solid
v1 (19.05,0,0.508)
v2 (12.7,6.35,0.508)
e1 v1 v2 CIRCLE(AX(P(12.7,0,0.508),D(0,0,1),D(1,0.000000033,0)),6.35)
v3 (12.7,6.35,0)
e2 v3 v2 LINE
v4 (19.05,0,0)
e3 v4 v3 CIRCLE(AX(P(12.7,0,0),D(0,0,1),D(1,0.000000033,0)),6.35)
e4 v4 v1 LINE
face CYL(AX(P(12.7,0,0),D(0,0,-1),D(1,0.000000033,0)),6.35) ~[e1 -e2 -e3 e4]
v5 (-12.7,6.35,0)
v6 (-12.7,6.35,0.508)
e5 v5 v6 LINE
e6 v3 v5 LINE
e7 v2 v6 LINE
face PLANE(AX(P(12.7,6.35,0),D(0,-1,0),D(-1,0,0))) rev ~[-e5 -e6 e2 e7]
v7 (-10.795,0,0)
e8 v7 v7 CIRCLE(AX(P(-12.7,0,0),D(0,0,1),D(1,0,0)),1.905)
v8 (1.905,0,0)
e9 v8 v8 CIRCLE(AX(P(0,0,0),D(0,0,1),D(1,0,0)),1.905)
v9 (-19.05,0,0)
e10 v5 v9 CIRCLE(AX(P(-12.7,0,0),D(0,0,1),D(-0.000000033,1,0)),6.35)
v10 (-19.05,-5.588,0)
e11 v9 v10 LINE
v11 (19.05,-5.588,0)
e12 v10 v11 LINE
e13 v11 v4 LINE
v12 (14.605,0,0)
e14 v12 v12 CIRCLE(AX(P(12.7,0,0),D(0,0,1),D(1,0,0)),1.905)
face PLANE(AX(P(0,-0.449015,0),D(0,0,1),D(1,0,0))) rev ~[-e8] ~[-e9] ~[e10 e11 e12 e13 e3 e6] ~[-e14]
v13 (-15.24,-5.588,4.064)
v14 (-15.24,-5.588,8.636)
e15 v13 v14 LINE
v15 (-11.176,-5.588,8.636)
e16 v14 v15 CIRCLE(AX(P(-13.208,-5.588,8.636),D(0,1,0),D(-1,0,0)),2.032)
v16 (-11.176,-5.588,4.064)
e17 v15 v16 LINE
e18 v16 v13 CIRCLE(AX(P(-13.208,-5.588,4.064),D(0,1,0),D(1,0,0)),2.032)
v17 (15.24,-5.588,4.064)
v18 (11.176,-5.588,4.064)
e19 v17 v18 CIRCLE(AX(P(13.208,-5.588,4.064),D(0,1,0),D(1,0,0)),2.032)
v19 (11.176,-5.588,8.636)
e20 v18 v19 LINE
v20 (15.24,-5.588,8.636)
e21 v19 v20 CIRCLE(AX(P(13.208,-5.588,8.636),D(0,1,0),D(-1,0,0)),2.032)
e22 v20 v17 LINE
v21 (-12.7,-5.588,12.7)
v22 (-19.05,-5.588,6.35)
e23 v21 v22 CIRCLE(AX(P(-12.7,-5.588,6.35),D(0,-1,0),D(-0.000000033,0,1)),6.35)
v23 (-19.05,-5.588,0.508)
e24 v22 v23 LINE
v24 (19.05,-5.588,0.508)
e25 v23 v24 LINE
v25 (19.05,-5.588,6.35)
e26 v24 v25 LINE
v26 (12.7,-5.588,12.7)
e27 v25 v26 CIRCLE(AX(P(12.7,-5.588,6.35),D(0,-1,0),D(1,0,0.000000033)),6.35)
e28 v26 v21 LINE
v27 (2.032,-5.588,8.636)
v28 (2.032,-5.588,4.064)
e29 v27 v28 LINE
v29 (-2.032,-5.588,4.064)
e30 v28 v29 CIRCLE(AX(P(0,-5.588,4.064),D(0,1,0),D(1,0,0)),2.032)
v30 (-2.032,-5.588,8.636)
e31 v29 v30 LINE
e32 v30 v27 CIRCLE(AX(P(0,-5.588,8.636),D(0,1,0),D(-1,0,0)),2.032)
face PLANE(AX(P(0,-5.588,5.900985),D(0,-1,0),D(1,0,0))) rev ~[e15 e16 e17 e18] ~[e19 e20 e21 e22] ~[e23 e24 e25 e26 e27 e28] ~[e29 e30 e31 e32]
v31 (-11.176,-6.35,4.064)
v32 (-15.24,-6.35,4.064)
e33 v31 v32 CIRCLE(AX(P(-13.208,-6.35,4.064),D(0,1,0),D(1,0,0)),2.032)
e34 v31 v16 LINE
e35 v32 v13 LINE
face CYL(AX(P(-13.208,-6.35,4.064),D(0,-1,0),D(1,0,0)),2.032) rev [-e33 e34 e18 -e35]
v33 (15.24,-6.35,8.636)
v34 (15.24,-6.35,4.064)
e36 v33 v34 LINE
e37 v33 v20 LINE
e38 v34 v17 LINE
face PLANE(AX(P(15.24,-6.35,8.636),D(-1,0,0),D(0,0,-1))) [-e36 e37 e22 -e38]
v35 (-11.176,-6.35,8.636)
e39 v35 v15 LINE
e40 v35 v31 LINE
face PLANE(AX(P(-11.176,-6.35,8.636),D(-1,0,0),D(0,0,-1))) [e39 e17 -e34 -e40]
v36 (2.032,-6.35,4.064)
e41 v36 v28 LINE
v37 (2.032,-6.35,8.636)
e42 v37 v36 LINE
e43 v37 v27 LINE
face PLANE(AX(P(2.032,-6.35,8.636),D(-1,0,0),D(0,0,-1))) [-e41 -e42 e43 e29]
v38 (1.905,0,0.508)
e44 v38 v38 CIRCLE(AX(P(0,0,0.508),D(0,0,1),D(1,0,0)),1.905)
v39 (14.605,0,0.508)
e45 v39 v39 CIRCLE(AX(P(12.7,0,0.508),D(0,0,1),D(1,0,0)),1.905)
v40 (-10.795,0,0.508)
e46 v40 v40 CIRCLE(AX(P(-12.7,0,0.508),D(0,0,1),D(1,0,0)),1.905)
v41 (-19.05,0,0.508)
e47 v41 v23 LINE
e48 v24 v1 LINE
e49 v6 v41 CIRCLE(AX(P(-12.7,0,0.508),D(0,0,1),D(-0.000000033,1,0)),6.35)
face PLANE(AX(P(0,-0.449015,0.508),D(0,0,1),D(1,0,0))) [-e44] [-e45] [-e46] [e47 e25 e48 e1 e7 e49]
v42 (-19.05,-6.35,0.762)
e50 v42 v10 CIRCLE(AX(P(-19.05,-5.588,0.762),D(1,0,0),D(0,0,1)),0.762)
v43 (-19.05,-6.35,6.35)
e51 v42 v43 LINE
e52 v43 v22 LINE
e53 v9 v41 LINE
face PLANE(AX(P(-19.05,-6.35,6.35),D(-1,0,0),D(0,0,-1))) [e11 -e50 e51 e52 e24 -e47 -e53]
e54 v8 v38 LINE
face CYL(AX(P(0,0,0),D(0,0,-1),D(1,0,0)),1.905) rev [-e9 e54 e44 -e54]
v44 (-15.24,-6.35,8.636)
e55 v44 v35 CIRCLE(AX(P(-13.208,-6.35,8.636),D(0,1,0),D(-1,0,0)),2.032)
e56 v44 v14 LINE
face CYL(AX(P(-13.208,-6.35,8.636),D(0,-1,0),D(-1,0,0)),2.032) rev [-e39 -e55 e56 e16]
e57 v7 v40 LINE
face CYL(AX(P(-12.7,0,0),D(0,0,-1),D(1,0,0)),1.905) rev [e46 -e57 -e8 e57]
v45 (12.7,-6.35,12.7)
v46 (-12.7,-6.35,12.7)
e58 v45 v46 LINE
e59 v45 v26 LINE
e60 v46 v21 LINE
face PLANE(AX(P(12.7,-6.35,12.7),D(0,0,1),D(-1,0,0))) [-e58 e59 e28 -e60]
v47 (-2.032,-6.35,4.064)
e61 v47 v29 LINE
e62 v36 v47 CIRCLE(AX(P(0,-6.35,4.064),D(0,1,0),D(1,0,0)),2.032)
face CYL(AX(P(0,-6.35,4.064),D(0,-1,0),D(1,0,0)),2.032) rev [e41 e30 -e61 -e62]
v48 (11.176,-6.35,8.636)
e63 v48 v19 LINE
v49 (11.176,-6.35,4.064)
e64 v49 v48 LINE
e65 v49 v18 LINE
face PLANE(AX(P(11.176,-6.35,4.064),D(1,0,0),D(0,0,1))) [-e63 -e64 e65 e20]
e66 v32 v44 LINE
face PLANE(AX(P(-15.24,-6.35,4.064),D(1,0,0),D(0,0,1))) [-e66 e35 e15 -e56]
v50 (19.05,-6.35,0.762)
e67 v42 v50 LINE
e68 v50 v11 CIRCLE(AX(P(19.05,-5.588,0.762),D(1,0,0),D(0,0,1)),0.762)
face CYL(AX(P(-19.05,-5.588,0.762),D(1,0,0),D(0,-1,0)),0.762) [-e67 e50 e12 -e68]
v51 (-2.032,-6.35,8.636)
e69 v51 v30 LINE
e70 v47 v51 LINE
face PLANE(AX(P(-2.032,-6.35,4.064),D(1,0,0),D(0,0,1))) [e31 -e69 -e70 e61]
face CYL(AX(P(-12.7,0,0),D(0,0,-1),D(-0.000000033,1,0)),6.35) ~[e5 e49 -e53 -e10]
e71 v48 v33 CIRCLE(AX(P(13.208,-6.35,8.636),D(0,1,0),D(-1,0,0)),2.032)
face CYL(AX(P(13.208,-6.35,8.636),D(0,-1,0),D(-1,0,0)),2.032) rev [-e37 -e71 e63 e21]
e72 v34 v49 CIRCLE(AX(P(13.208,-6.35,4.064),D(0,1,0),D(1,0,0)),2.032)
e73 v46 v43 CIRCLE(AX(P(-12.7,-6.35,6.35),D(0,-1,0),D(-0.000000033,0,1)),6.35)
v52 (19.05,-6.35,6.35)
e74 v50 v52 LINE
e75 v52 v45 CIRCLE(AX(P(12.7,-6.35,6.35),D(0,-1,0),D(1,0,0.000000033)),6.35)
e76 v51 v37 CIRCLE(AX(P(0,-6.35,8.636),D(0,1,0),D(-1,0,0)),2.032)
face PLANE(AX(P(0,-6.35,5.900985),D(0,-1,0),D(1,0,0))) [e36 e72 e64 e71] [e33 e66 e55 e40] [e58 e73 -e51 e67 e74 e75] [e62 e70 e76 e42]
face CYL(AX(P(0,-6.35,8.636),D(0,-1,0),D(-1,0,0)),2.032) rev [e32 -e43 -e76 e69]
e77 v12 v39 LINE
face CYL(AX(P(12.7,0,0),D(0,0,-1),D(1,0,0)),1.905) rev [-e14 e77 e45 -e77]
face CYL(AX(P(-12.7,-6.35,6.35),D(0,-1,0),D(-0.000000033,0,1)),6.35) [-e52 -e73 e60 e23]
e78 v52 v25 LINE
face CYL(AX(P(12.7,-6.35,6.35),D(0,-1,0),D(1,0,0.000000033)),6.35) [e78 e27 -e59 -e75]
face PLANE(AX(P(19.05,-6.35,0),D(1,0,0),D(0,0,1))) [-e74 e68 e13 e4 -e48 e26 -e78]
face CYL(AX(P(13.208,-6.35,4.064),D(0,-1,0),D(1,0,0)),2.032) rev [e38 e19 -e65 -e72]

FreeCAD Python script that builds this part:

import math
import FreeCAD as App
import Part
import Sketcher

V = App.Vector
Q = App.Units.Quantity


def edges_at(feature, points):
    """Names of the edges that pass closest to the given points."""
    edges = feature.Shape.Edges
    near = lambda p: min(range(len(edges)), key=lambda i: edges[i].distToShape(Part.Vertex(*p))[0])
    return sorted({f"Edge{near(p) + 1}" for p in points})

doc = App.newDocument("Part")
body = doc.addObject("PartDesign::Body", "Body")

sketch1 = doc.addObject("Sketcher::SketchObject", "Sketch")
body.addObject(sketch1)
sketch1.AttachmentSupport = (doc.XY_Plane, [""])
sketch1.MapMode = "FlatFace"
sketch1.addGeometry([
    Part.ArcOfCircle(Part.Circle(V(12.7, 0, 0), V(0, 0, 1), 6.35), math.radians(0.000002), math.radians(89.999998)),
    Part.LineSegment(V(12.7, 6.35, 0), V(-12.7, 6.35, 0)),
    Part.ArcOfCircle(Part.Circle(V(-12.7, 0, 0), V(0, 0, 1), 6.35), math.radians(90.000002), math.radians(179.999998)),
    Part.LineSegment(V(-19.05, 0, 0), V(-19.05, -6.35, 0)),
    Part.LineSegment(V(-19.05, -6.35, 0), V(19.05, -6.35, 0)),
    Part.LineSegment(V(19.05, -6.35, 0), V(19.05, 0, 0)),
    Part.Circle(V(-12.7, 0, 0), V(0, 0, 1), 1.905),
    Part.Circle(V(12.7, 0, 0), V(0, 0, 1), 1.905),
    Part.Circle(V(0, 0, 0), V(0, 0, 1), 1.905),
], False)
sketch1.addConstraint([
    Sketcher.Constraint("Tangent", 0, 2, 1, 1),
    Sketcher.Constraint("Tangent", 1, 2, 2, 1),
    Sketcher.Constraint("Tangent", 2, 2, 3, 1),
    Sketcher.Constraint("Coincident", 3, 2, 4, 1),
    Sketcher.Constraint("Coincident", 4, 2, 5, 1),
    Sketcher.Constraint("Tangent", 5, 2, 0, 1),
    Sketcher.Constraint("Horizontal", 1),
    Sketcher.Constraint("Vertical", 3),
    Sketcher.Constraint("Horizontal", 4),
    Sketcher.Constraint("Vertical", 5),
    Sketcher.Constraint("Coincident", 8, 3, -1, 1),
    Sketcher.Constraint("Coincident", 6, 3, 2, 3),
    Sketcher.Constraint("Coincident", 7, 3, 0, 3),
    Sketcher.Constraint("Equal", 0, 2),
    Sketcher.Constraint("Equal", 6, 7),
    Sketcher.Constraint("Equal", 7, 8),
    Sketcher.Constraint("Symmetric", 0, 3, 2, 3, -1, 1),
    Sketcher.Constraint("Diameter", 6, Q("0.15 in")),
    Sketcher.Constraint("DistanceX", 1, 2, 1, 1, Q("1 in")),
    Sketcher.Constraint("Radius", 0, Q("0.25 in")),
    Sketcher.Constraint("DistanceY", 3, 2, 3, 1, Q("0.25 in")),
])
pad1 = doc.addObject("PartDesign::Pad", "Pad")
body.addObject(pad1)
pad1.Profile = sketch1
pad1.Length = Q("0.02 in")

sketch2 = doc.addObject("Sketcher::SketchObject", "Sketch001")
body.addObject(sketch2)
sketch2.AttachmentSupport = (doc.XZ_Plane, [""])
sketch2.MapMode = "FlatFace"
sketch2.AttachmentOffset = App.Placement(V(0, 0, 0.25 * 25.4), App.Rotation())
sketch2.addGeometry([
    Part.LineSegment(V(-19.05, 6.35, 0), V(-19.05, 0, 0)),
    Part.LineSegment(V(-19.05, 0, 0), V(19.05, 0, 0)),
    Part.LineSegment(V(19.05, 0, 0), V(19.05, 6.35, 0)),
    Part.ArcOfCircle(Part.Circle(V(12.7, 6.35, 0), V(0, 0, 1), 6.35), math.radians(0.000002), math.radians(89.999998)),
    Part.LineSegment(V(12.7, 12.7, 0), V(-12.7, 12.7, 0)),
    Part.ArcOfCircle(Part.Circle(V(-12.7, 6.35, 0), V(0, 0, 1), 6.35), math.radians(90.000002), math.radians(179.999998)),
    Part.ArcOfCircle(Part.Circle(V(-13.208, 8.636, 0), V(0, 0, 1), 2.032), math.radians(0), math.radians(180)),
    Part.LineSegment(V(-11.176, 8.636, 0), V(-11.176, 4.064, 0)),
    Part.ArcOfCircle(Part.Circle(V(-13.208, 4.064, 0), V(0, 0, 1), 2.032), math.radians(180), math.radians(360)),
    Part.LineSegment(V(-15.24, 4.064, 0), V(-15.24, 8.636, 0)),
    Part.ArcOfCircle(Part.Circle(V(0, 4.064, 0), V(0, 0, 1), 2.032), math.radians(180), math.radians(360)),
    Part.LineSegment(V(-2.032, 4.064, 0), V(-2.032, 8.636, 0)),
    Part.ArcOfCircle(Part.Circle(V(0, 8.636, 0), V(0, 0, 1), 2.032), math.radians(0), math.radians(180)),
    Part.LineSegment(V(2.032, 8.636, 0), V(2.032, 4.064, 0)),
    Part.ArcOfCircle(Part.Circle(V(13.208, 8.636, 0), V(0, 0, 1), 2.032), math.radians(0), math.radians(180)),
    Part.LineSegment(V(15.24, 8.636, 0), V(15.24, 4.064, 0)),
    Part.ArcOfCircle(Part.Circle(V(13.208, 4.064, 0), V(0, 0, 1), 2.032), math.radians(180), math.radians(360)),
    Part.LineSegment(V(11.176, 4.064, 0), V(11.176, 8.636, 0)),
], False)
sketch2.addConstraint([
    Sketcher.Constraint("Coincident", 0, 2, 1, 1),
    Sketcher.Constraint("Coincident", 1, 2, 2, 1),
    Sketcher.Constraint("Tangent", 2, 2, 3, 1),
    Sketcher.Constraint("Tangent", 3, 2, 4, 1),
    Sketcher.Constraint("Tangent", 4, 2, 5, 1),
    Sketcher.Constraint("Tangent", 5, 2, 0, 1),
    Sketcher.Constraint("Tangent", 6, 1, 7, 1),
    Sketcher.Constraint("Tangent", 7, 2, 8, 2),
    Sketcher.Constraint("Tangent", 8, 1, 9, 1),
    Sketcher.Constraint("Tangent", 9, 2, 6, 2),
    Sketcher.Constraint("Tangent", 10, 1, 11, 1),
    Sketcher.Constraint("Tangent", 11, 2, 12, 2),
    Sketcher.Constraint("Tangent", 12, 1, 13, 1),
    Sketcher.Constraint("Tangent", 13, 2, 10, 2),
    Sketcher.Constraint("Tangent", 14, 1, 15, 1),
    Sketcher.Constraint("Tangent", 15, 2, 16, 2),
    Sketcher.Constraint("Tangent", 16, 1, 17, 1),
    Sketcher.Constraint("Tangent", 17, 2, 14, 2),
    Sketcher.Constraint("Vertical", 0),
    Sketcher.Constraint("Horizontal", 1),
    Sketcher.Constraint("Vertical", 2),
    Sketcher.Constraint("Horizontal", 4),
    Sketcher.Constraint("Vertical", 7),
    Sketcher.Constraint("Vertical", 9),
    Sketcher.Constraint("Vertical", 11),
    Sketcher.Constraint("Vertical", 13),
    Sketcher.Constraint("Vertical", 15),
    Sketcher.Constraint("Vertical", 17),
    Sketcher.Constraint("Equal", 3, 5),
    Sketcher.Constraint("Equal", 8, 10),
    Sketcher.Constraint("Equal", 12, 14),
    Sketcher.Constraint("Symmetric", 0, 2, 1, 2, -1, 1),
    Sketcher.Constraint("Symmetric", 6, 3, 14, 3, -2),
    Sketcher.Constraint("PointOnObject", 10, 3, -2),
    Sketcher.Constraint("Horizontal", 8, 3, 10, 3),
    Sketcher.Constraint("Horizontal", 6, 3, 12, 3),
    Sketcher.Constraint("Horizontal", 10, 3, 16, 3),
    Sketcher.Constraint("DistanceX", 4, 2, 4, 1, Q("1 in")),
    Sketcher.Constraint("Radius", 3, Q("0.25 in")),
    Sketcher.Constraint("Radius", 6, Q("0.08 in")),
    Sketcher.Constraint("DistanceY", 0, 2, 0, 1, Q("0.25 in")),
    Sketcher.Constraint("DistanceY", 7, 2, 7, 1, Q("0.18 in")),
    Sketcher.Constraint("DistanceX", 8, 1, -1, 1, Q("0.6 in")),
    Sketcher.Constraint("DistanceY", -1, 1, 6, 3, Q("0.34 in")),
])
pad2 = doc.addObject("PartDesign::Pad", "Pad001")
body.addObject(pad2)
pad2.Profile = sketch2
pad2.Length = Q("0.03 in")
pad2.Reversed = True
doc.recompute()

fillet = doc.addObject("PartDesign::Fillet", "Fillet")
body.addObject(fillet)
fillet.Base = (pad2, edges_at(pad2, [(0, -6.35, 0)]))
fillet.Radius = Q("0.03 in")

doc.recompute()
